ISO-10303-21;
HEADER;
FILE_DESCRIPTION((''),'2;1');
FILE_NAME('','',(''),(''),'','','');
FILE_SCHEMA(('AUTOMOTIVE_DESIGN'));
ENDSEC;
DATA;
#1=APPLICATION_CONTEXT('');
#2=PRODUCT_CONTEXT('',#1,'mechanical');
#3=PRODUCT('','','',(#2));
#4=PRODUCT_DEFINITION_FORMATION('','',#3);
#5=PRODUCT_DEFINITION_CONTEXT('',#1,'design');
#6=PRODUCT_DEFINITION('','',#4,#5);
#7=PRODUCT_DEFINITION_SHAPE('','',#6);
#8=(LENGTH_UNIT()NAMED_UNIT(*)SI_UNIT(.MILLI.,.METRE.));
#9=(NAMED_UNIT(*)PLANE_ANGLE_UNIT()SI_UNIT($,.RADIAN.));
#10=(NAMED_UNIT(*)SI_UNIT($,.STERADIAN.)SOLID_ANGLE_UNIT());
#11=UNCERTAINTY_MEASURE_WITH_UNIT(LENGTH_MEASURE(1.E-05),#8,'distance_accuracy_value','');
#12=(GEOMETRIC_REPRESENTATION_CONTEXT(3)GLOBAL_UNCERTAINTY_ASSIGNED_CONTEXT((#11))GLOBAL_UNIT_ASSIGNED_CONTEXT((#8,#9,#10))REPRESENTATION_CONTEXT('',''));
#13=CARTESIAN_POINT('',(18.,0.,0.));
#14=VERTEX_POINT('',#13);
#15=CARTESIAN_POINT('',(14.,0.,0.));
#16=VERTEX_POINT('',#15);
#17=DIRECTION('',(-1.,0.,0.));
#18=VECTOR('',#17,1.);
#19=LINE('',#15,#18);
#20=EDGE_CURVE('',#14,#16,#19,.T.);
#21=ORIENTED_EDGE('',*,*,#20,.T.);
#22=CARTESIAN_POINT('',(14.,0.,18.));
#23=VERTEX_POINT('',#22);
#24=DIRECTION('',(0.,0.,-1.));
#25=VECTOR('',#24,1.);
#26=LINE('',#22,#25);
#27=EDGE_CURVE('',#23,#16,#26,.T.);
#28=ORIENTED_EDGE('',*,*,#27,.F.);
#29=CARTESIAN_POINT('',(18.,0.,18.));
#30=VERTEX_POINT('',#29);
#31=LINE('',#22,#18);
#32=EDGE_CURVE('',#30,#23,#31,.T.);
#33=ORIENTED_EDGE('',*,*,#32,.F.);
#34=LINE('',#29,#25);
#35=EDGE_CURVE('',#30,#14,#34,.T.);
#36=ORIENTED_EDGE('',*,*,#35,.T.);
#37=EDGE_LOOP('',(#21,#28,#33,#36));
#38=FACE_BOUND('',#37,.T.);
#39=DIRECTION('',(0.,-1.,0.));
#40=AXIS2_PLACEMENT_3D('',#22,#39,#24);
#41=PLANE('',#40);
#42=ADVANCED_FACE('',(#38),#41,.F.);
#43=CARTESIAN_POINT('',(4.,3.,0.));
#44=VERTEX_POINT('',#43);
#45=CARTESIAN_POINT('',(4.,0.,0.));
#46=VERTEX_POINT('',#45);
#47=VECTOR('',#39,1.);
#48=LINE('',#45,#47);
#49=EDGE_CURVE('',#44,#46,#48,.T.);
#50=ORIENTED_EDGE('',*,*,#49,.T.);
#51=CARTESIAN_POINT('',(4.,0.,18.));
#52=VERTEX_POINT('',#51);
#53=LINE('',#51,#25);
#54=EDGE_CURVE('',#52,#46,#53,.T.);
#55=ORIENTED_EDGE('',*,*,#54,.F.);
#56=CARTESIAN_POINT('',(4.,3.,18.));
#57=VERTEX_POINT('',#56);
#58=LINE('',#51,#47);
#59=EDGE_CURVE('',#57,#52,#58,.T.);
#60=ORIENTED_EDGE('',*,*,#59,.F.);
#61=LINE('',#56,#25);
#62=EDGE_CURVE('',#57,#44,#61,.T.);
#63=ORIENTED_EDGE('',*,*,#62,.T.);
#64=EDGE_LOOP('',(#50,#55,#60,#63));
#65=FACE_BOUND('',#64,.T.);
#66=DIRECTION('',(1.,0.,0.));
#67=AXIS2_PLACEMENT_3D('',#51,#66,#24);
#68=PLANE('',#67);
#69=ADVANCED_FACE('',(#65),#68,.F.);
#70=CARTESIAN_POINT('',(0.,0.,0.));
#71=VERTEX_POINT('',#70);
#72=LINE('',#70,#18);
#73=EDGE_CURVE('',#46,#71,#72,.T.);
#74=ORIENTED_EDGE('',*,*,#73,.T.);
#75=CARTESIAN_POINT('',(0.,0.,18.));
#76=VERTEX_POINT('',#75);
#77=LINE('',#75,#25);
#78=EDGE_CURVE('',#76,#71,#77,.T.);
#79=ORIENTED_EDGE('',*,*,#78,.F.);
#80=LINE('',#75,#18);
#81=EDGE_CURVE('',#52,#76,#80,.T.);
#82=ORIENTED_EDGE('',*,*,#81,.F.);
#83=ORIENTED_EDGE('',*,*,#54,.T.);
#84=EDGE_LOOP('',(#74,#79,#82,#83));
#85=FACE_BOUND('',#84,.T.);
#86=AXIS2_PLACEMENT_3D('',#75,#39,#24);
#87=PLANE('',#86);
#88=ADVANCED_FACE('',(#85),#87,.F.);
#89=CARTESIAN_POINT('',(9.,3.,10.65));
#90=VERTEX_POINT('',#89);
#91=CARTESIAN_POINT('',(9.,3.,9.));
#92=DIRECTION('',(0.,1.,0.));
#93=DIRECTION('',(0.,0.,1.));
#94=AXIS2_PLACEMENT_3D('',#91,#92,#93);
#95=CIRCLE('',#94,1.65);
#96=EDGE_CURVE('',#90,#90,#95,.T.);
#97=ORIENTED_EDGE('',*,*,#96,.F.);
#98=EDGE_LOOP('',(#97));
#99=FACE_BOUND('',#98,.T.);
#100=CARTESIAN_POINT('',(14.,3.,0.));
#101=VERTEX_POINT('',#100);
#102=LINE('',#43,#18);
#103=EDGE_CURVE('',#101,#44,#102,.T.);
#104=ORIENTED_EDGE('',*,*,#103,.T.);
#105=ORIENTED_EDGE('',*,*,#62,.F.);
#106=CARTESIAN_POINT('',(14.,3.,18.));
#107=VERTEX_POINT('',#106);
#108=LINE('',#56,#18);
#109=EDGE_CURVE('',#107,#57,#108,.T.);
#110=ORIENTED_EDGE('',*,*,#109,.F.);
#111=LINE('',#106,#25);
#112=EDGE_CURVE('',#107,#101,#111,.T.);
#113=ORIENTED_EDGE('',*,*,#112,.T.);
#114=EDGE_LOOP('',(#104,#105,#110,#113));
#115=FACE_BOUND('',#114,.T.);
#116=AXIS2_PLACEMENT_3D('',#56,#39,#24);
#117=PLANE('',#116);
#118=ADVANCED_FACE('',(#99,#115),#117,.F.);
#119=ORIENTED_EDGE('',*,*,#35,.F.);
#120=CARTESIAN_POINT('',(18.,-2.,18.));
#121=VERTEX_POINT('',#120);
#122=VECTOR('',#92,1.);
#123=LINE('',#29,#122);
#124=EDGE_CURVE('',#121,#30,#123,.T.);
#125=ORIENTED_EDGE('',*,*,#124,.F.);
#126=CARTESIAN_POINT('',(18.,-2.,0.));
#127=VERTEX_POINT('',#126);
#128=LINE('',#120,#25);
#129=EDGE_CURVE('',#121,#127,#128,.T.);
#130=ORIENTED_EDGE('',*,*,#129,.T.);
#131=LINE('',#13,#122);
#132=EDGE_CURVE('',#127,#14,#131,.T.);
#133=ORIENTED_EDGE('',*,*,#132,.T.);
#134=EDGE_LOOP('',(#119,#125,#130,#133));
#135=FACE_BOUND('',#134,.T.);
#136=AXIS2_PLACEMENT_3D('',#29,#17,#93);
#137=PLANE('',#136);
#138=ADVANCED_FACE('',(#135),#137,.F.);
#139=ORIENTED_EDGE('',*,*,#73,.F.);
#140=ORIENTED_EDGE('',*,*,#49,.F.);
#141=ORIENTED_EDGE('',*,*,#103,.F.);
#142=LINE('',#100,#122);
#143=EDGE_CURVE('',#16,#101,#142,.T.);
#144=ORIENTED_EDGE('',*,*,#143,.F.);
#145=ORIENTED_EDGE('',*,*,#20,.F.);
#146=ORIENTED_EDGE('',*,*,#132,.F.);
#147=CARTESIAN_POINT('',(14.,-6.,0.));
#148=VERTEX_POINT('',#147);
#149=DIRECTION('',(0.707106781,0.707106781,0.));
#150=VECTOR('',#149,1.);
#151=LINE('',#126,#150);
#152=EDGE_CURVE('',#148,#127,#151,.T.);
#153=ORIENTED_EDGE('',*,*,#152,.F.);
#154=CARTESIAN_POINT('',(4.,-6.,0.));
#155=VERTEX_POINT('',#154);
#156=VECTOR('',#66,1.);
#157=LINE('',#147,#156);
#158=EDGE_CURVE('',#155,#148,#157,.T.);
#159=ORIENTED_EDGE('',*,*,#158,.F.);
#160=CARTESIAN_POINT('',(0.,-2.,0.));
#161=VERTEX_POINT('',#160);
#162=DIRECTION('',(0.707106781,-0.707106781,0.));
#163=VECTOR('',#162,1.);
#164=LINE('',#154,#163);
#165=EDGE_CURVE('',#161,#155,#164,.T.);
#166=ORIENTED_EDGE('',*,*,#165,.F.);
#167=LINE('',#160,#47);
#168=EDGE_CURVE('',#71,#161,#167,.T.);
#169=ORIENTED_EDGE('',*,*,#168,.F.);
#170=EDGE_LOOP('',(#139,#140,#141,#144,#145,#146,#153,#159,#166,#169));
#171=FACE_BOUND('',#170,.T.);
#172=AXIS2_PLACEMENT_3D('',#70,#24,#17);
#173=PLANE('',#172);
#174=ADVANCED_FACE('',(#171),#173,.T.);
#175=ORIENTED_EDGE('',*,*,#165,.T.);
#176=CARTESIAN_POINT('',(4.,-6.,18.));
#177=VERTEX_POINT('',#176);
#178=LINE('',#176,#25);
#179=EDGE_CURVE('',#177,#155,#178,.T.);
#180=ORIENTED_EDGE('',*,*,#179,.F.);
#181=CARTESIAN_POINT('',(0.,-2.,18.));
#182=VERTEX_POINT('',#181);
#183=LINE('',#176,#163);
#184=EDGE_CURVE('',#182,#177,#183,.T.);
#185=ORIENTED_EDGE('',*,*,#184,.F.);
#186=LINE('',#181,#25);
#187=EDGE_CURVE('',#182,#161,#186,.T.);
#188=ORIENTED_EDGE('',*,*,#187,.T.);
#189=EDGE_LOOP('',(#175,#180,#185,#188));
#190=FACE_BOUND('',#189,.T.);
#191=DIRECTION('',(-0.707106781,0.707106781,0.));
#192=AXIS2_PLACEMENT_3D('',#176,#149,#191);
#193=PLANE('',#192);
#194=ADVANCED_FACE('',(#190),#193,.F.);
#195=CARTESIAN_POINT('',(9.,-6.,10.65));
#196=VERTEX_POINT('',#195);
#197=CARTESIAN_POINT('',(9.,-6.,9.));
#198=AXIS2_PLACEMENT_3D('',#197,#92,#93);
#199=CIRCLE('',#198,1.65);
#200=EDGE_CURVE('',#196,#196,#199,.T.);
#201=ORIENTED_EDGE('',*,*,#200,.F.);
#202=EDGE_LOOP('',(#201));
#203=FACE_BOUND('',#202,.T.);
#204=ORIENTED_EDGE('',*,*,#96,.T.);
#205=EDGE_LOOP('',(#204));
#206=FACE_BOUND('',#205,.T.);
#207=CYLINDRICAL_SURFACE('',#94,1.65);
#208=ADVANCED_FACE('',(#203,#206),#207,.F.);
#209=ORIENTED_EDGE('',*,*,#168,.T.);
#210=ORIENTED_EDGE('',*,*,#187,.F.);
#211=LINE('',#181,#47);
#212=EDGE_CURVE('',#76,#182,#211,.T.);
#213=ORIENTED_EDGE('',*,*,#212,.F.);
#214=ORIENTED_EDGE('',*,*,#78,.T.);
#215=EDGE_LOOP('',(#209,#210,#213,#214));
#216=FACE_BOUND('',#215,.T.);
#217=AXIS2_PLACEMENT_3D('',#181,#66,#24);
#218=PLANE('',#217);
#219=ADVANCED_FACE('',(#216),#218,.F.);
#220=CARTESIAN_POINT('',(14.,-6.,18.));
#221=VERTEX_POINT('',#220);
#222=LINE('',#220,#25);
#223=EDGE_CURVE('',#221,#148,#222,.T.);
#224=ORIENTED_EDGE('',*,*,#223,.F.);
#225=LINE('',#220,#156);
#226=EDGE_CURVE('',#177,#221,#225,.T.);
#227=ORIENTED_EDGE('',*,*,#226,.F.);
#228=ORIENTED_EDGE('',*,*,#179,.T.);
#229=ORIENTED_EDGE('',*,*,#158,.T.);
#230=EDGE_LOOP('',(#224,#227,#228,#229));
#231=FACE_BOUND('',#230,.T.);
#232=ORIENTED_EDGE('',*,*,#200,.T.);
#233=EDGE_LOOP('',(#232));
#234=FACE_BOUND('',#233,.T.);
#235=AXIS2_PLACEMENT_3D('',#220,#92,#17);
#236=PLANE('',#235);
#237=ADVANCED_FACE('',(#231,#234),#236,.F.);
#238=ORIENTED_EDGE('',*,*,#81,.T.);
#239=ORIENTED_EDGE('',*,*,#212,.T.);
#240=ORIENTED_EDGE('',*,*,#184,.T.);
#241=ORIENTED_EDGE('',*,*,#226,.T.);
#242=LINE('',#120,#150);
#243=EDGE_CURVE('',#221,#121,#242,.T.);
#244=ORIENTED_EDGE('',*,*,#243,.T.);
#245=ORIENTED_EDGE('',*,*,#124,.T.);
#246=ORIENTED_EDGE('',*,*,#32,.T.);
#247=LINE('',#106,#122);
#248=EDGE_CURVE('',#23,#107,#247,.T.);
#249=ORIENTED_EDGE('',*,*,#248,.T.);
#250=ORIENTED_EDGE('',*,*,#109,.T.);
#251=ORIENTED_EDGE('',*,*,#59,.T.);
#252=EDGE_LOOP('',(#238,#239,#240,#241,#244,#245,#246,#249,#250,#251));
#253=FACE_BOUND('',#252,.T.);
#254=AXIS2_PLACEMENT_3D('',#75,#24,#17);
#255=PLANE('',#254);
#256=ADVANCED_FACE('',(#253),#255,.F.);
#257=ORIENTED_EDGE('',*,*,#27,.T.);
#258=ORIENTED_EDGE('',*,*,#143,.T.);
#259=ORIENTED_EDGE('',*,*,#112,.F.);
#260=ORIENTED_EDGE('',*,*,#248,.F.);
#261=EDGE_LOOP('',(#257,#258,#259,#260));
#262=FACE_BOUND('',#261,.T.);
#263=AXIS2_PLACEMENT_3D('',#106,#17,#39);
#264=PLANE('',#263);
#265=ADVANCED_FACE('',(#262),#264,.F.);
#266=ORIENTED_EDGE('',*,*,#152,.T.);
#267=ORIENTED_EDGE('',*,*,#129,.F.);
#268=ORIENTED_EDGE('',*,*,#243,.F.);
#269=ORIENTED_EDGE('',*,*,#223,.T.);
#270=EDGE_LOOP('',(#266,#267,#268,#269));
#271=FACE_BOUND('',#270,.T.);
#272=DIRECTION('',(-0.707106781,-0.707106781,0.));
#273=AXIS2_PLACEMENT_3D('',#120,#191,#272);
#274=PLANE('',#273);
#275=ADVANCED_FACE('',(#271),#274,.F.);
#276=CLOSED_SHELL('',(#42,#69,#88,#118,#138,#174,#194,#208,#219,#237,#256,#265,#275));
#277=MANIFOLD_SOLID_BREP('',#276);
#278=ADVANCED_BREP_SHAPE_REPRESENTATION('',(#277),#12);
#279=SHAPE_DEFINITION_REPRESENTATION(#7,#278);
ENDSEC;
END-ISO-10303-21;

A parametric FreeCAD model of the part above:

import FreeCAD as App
import Part
import Sketcher
from FreeCAD import Vector
Q = App.Units.Quantity


def add_polygon(sketch, points):
    """Adds a closed chain of lines whose ends are joined by coincident constraints."""
    first, n = sketch.GeometryCount, len(points)
    for a, b in zip(points, points[1:] + points[:1]):
        sketch.addGeometry(Part.LineSegment(App.Vector(*a, 0), App.Vector(*b, 0)), False)
    for i in range(n):
        sketch.addConstraint(Sketcher.Constraint("Coincident", first + i, 2, first + (i + 1) % n, 1))

doc = App.newDocument("Part")
body = doc.addObject("PartDesign::Body", "Body")

# Sketch on XY plane
sketch1 = body.newObject("Sketcher::SketchObject", "Sketch")
sketch1.AttachmentSupport = (doc.getObject("XY_Plane"), [""])
sketch1.MapMode = "FlatFace"
add_polygon(sketch1, [(4, 0), (0, 0), (0, -2), (4, -6), (14, -6), (18, -2), (18, 0), (14, 0), (14, 3), (4, 3)])  # lines 0-9
sketch1.addConstraint(Sketcher.Constraint("Horizontal", 0))
sketch1.addConstraint(Sketcher.Constraint("Vertical", 1))
sketch1.addConstraint(Sketcher.Constraint("Horizontal", 3))
sketch1.addConstraint(Sketcher.Constraint("Vertical", 5))
sketch1.addConstraint(Sketcher.Constraint("Horizontal", 6))
sketch1.addConstraint(Sketcher.Constraint("Vertical", 7))
sketch1.addConstraint(Sketcher.Constraint("Horizontal", 8))
sketch1.addConstraint(Sketcher.Constraint("Vertical", 9))
sketch1.addConstraint(Sketcher.Constraint("Coincident", 0, 2, -1, 1))
sketch1.addConstraint(Sketcher.Constraint("PointOnObject", 5, 2, -1))
sketch1.addConstraint(Sketcher.Constraint("Perpendicular", 2, 4))
sketch1.addConstraint(Sketcher.Constraint("Horizontal", 1, 2, 4, 2))
sketch1.addConstraint(Sketcher.Constraint("Vertical", 3, 2, 6, 2))
sketch1.addConstraint(Sketcher.Constraint("Vertical", 2, 2, 8, 2))
sketch1.addConstraint(Sketcher.Constraint("Equal", 0, 6))
sketch1.addConstraint(Sketcher.Constraint("DistanceX", 0, 2, 0, 1, Q("4 mm")))
sketch1.addConstraint(Sketcher.Constraint("DistanceX", 3, 1, 3, 2, Q("10 mm")))
sketch1.addConstraint(Sketcher.Constraint("DistanceY", 1, 2, 1, 1, Q("2 mm")))
sketch1.addConstraint(Sketcher.Constraint("DistanceY", 7, 1, 7, 2, Q("3 mm")))
pad1 = body.newObject("PartDesign::Pad", "Pad")
pad1.Profile = sketch1
pad1.Length = 18

# Sketch on XZ plane
sketch2 = body.newObject("Sketcher::SketchObject", "Sketch001")
sketch2.AttachmentSupport = (doc.getObject("XZ_Plane"), [""])
sketch2.MapMode = "FlatFace"
sketch2.AttachmentOffset = App.Placement(Vector(0, 0, -3), App.Rotation())
sketch2.addGeometry(Part.Circle(Vector(9, 9, 0), Vector(0, 0, 1), 1.65), False)
sketch2.addConstraint(Sketcher.Constraint("Diameter", 0, Q("3.3 mm")))
sketch2.addConstraint(Sketcher.Constraint("DistanceX", -1, 1, 0, 3, Q("9 mm")))
sketch2.addConstraint(Sketcher.Constraint("DistanceY", -1, 1, 0, 3, Q("9 mm")))
doc.recompute()
hole = body.newObject("PartDesign::Hole", "Hole")
hole.Profile = sketch2
hole.ThreadType = "None"
hole.Diameter = 3.3
hole.DepthType = "ThroughAll"
hole.Reversed = True

doc.recompute()
